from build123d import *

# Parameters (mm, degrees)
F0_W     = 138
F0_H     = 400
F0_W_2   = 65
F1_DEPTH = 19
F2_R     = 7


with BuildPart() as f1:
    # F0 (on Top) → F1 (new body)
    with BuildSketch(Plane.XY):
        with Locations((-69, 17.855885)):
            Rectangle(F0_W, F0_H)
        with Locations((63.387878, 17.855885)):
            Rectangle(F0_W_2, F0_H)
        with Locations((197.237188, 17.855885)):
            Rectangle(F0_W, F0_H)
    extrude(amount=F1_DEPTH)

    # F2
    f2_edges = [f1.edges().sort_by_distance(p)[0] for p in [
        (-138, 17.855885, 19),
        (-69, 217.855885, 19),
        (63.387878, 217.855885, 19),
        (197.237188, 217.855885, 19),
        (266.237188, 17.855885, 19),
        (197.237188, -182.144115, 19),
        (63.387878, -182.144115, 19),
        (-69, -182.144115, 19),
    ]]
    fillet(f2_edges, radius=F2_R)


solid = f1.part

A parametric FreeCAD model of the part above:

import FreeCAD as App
import Part
import Sketcher
from FreeCAD import Vector
Q = App.Units.Quantity


def edges_at(feature, points):
    """Names of the edges that pass closest to the given points."""
    edges = feature.Shape.Edges
    near = lambda p: min(range(len(edges)), key=lambda i: edges[i].distToShape(Part.Vertex(*p))[0])
    return sorted({f"Edge{near(p) + 1}" for p in points})

doc = App.newDocument("Part")
params = doc.addObject("Spreadsheet::Sheet", "Params")
for row, (alias, value) in enumerate([
    ("sketch1_width", "138 mm"),
    ("sketch1_width2", "65 mm"),
    ("sketch1_height", "400 mm"),
    ("pad1_length", "19 mm"),
    ("fillet_radius", "7 mm"),
], start=1):
    params.set(f"A{row}", alias)
    params.set(f"B{row}", "=" + value)
    params.setAlias(f"B{row}", alias)

body = doc.addObject("PartDesign::Body", "Body")
body.AllowCompound = True

# Sketch on XY plane
sketch1 = body.newObject("Sketcher::SketchObject", "Sketch")
sketch1.AttachmentSupport = (doc.getObject("XY_Plane"), [""])
sketch1.MapMode = "FlatFace"
sketch1.addGeometry([
    Part.LineSegment(Vector(-138, 218, 0), Vector(-138, -182, 0)),  # 0
    Part.LineSegment(Vector(-138, -182, 0), Vector(0, -182, 0)),  # 1
    Part.LineSegment(Vector(0, -182, 0), Vector(0, 218, 0)),  # 2
    Part.LineSegment(Vector(0, 218, 0), Vector(-138, 218, 0)),  # 3
    Part.LineSegment(Vector(31, 218, 0), Vector(31, -182, 0)),  # 4
    Part.LineSegment(Vector(31, -182, 0), Vector(96, -182, 0)),  # 5
    Part.LineSegment(Vector(96, -182, 0), Vector(96, 218, 0)),  # 6
    Part.LineSegment(Vector(96, 218, 0), Vector(31, 218, 0)),  # 7
    Part.LineSegment(Vector(128, 218, 0), Vector(128, -182, 0)),  # 8
    Part.LineSegment(Vector(128, -182, 0), Vector(266, -182, 0)),  # 9
    Part.LineSegment(Vector(266, -182, 0), Vector(266, 218, 0)),  # 10
    Part.LineSegment(Vector(266, 218, 0), Vector(128, 218, 0)),  # 11
], False)
sketch1.addConstraint([
    Sketcher.Constraint("Coincident", 0, 2, 1, 1),
    Sketcher.Constraint("Coincident", 1, 2, 2, 1),
    Sketcher.Constraint("Coincident", 2, 2, 3, 1),
    Sketcher.Constraint("Coincident", 3, 2, 0, 1),
    Sketcher.Constraint("Coincident", 4, 2, 5, 1),
    Sketcher.Constraint("Coincident", 5, 2, 6, 1),
    Sketcher.Constraint("Coincident", 6, 2, 7, 1),
    Sketcher.Constraint("Coincident", 7, 2, 4, 1),
    Sketcher.Constraint("Coincident", 8, 2, 9, 1),
    Sketcher.Constraint("Coincident", 9, 2, 10, 1),
    Sketcher.Constraint("Coincident", 10, 2, 11, 1),
    Sketcher.Constraint("Coincident", 11, 2, 8, 1),
    Sketcher.Constraint("Vertical", 0),
    Sketcher.Constraint("Horizontal", 1),
    Sketcher.Constraint("Vertical", 2),
    Sketcher.Constraint("Horizontal", 3),
    Sketcher.Constraint("Vertical", 4),
    Sketcher.Constraint("Horizontal", 5),
    Sketcher.Constraint("Vertical", 6),
    Sketcher.Constraint("Horizontal", 7),
    Sketcher.Constraint("Vertical", 8),
    Sketcher.Constraint("Horizontal", 9),
    Sketcher.Constraint("Vertical", 10),
    Sketcher.Constraint("Horizontal", 11),
    Sketcher.Constraint("PointOnObject", 1, 2, -2),
    Sketcher.Constraint("Horizontal", 1, 2, 4, 2),
    Sketcher.Constraint("Horizontal", 3, 2, 6, 2),
    Sketcher.Constraint("Horizontal", 5, 2, 8, 2),
    Sketcher.Constraint("Horizontal", 7, 2, 10, 2),
    Sketcher.Constraint("Equal", 3, 9),
    Sketcher.Constraint("DistanceX", 1, 1, 1, 2, Q("138 mm")),
    Sketcher.Constraint("DistanceX", 5, 1, 5, 2, Q("65 mm")),
    Sketcher.Constraint("DistanceY", 0, 2, 0, 1, Q("400 mm")),
    Sketcher.Constraint("DistanceX", -1, 1, 4, 2, Q("30.887878 mm")),
    Sketcher.Constraint("DistanceX", -1, 1, 8, 2, Q("128.237188 mm")),
    Sketcher.Constraint("DistanceY", 0, 2, -1, 1, Q("182.144115 mm")),
])
sketch1.setExpression("Constraints[30]", "Params.sketch1_width")
sketch1.setExpression("Constraints[31]", "Params.sketch1_width2")
sketch1.setExpression("Constraints[32]", "Params.sketch1_height")
pad1 = body.newObject("PartDesign::Pad", "Pad")
pad1.Profile = sketch1
pad1.setExpression("Length", "Params.pad1_length")
doc.recompute()

fillet = body.newObject("PartDesign::Fillet", "Fillet")
fillet.Base = (pad1, edges_at(pad1, [
    (-138, 17.856, 19),
    (-69, 217.856, 19),
    (63.388, 217.856, 19),
    (197.237, 217.856, 19),
    (266.237, 17.856, 19),
    (197.237, -182.144, 19),
    (63.388, -182.144, 19),
    (-69, -182.144, 19),
]))
fillet.setExpression("Radius", "Params.fillet_radius")

doc.recompute()
